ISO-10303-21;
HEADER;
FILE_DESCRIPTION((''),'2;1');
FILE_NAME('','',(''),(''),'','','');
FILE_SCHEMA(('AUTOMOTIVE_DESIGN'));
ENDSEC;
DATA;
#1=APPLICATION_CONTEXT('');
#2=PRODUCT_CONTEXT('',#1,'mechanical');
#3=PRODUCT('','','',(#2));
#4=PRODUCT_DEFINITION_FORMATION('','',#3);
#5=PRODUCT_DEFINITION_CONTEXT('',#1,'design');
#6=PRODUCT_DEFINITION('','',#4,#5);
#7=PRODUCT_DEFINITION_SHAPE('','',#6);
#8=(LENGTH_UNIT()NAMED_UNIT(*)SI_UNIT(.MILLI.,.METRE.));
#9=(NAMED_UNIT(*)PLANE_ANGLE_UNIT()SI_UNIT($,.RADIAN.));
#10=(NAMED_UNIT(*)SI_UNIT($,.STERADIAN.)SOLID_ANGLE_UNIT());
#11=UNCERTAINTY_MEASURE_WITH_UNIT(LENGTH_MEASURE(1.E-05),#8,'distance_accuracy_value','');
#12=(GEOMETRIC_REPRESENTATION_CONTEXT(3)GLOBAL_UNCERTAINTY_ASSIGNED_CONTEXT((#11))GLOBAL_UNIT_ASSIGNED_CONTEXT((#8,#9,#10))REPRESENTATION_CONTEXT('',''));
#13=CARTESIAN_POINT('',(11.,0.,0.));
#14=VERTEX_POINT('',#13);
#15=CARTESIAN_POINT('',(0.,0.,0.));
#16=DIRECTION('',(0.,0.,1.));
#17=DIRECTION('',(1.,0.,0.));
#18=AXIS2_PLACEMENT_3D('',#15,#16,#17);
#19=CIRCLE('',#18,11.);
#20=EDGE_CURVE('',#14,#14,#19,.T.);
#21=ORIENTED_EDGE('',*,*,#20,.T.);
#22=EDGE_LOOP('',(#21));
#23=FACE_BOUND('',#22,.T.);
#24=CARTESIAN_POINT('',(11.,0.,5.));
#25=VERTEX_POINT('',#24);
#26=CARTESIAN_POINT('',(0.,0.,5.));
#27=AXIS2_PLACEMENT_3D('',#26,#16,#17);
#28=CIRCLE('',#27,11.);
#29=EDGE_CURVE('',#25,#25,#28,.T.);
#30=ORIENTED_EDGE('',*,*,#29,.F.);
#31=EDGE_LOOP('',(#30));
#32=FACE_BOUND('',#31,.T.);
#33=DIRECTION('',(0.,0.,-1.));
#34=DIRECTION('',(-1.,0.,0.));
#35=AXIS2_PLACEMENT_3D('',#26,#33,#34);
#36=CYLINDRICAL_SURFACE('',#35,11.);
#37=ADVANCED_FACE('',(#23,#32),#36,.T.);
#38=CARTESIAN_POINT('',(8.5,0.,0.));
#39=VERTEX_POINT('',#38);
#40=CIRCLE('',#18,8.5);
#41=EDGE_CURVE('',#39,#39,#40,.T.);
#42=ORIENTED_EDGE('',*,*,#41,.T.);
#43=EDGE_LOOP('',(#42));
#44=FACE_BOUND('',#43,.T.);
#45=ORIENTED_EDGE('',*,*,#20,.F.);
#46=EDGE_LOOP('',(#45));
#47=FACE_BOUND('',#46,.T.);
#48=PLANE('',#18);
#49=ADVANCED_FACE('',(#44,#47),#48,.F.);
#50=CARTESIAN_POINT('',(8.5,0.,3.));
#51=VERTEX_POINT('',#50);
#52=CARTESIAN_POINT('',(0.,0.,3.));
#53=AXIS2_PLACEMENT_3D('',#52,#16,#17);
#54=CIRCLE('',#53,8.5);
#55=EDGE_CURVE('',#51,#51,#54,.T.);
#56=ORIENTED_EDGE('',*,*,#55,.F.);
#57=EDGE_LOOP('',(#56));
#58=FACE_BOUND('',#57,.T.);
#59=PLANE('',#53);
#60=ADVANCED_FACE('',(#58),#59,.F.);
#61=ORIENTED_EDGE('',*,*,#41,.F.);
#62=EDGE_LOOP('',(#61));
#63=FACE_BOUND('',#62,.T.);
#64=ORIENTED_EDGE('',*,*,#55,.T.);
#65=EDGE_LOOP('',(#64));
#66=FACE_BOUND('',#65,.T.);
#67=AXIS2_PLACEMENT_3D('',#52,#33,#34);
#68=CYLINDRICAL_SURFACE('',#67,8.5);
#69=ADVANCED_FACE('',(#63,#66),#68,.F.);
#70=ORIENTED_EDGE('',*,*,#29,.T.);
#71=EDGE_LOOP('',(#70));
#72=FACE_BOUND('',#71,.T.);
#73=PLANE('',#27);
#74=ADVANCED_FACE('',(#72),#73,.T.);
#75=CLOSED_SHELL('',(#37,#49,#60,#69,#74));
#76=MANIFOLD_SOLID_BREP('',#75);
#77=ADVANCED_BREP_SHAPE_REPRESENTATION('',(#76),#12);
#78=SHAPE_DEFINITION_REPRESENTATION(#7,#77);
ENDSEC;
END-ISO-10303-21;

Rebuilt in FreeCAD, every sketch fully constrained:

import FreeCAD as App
import Part
import Sketcher

V = App.Vector
Q = App.Units.Quantity

doc = App.newDocument("Part")
params = doc.addObject("Spreadsheet::Sheet", "Params")
for row, (alias, value) in enumerate([
    ("sketch1_diameter", "22 mm"),
    ("pad1_length", "5 mm"),
    ("sketch2_diameter", "17 mm"),
    ("pocket1_length", "3 mm"),
], start=1):
    params.set(f"A{row}", alias)
    params.set(f"B{row}", "=" + value)
    params.setAlias(f"B{row}", alias)

body = doc.addObject("PartDesign::Body", "Body")

# Sketch on XY plane
sketch1 = body.newObject("Sketcher::SketchObject", "Sketch")
sketch1.AttachmentSupport = (doc.getObject("XY_Plane"), [""])
sketch1.MapMode = "FlatFace"
sketch1.addGeometry(Part.Circle(V(0, 0, 0), V(0, 0, 1), 11), False)
sketch1.addConstraint(Sketcher.Constraint("Coincident", 0, 3, -1, 1))
sketch1.addConstraint(Sketcher.Constraint("Diameter", 0, Q("22 mm")))
sketch1.setExpression("Constraints[1]", "Params.sketch1_diameter")
pad1 = body.newObject("PartDesign::Pad", "Pad")
pad1.Profile = sketch1
pad1.setExpression("Length", "Params.pad1_length")

# Sketch on XY plane
sketch2 = body.newObject("Sketcher::SketchObject", "Sketch001")
sketch2.AttachmentSupport = (doc.getObject("XY_Plane"), [""])
sketch2.MapMode = "FlatFace"
sketch2.addGeometry(Part.Circle(V(0, 0, 0), V(0, 0, 1), 8), False)
sketch2.addConstraint(Sketcher.Constraint("Coincident", 0, 3, -1, 1))
sketch2.addConstraint(Sketcher.Constraint("Diameter", 0, Q("17 mm")))
sketch2.setExpression("Constraints[1]", "Params.sketch2_diameter")
pocket1 = body.newObject("PartDesign::Pocket", "Pocket")
pocket1.Profile = sketch2
pocket1.setExpression("Length", "Params.pocket1_length")
pocket1.Reversed = True

doc.recompute()
